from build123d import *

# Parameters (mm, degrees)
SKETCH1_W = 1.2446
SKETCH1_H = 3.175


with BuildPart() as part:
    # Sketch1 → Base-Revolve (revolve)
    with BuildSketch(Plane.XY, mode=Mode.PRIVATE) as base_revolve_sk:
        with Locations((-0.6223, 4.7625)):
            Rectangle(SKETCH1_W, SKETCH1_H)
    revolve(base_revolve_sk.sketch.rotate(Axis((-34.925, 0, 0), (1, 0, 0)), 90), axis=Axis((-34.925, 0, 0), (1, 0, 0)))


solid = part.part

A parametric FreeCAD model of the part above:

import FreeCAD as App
import Part
import Sketcher
Q = App.Units.Quantity

doc = App.newDocument("Part")
params = doc.addObject("Spreadsheet::Sheet", "Params")
for row, (alias, value) in enumerate([
    ("sketch1_width", "0.049 in"),
    ("sketch1_height", "0.125 in"),
    ("revolution_angle", "360 deg"),
], start=1):
    params.set(f"A{row}", alias)
    params.set(f"B{row}", "=" + value)
    params.setAlias(f"B{row}", alias)

body = doc.addObject("PartDesign::Body", "Body")

# Sketch on XY plane
sketch1 = body.newObject("Sketcher::SketchObject", "Sketch")
sketch1.AttachmentSupport = (doc.getObject("XY_Plane"), [""])
sketch1.MapMode = "FlatFace"
sketch1.addGeometry([
    Part.LineSegment(App.Vector(-1.2446, 6.35, 0), App.Vector(-1.2446, 3.175, 0)),
    Part.LineSegment(App.Vector(-1.2446, 3.175, 0), App.Vector(0, 3.175, 0)),
    Part.LineSegment(App.Vector(0, 3.175, 0), App.Vector(0, 6.35, 0)),
    Part.LineSegment(App.Vector(0, 6.35, 0), App.Vector(-1.2446, 6.35, 0)),
], False)
sketch1.addConstraint([
    Sketcher.Constraint("Coincident", 0, 2, 1, 1),
    Sketcher.Constraint("Coincident", 1, 2, 2, 1),
    Sketcher.Constraint("Coincident", 2, 2, 3, 1),
    Sketcher.Constraint("Coincident", 3, 2, 0, 1),
    Sketcher.Constraint("Vertical", 0),
    Sketcher.Constraint("Horizontal", 1),
    Sketcher.Constraint("Vertical", 2),
    Sketcher.Constraint("Horizontal", 3),
    Sketcher.Constraint("PointOnObject", 1, 2, -2),
    Sketcher.Constraint("DistanceX", 1, 1, 1, 2, Q("0.049 in")),
    Sketcher.Constraint("DistanceY", 0, 2, 0, 1, Q("0.125 in")),
    Sketcher.Constraint("DistanceY", -1, 1, 2, 2, Q("0.25 in")),
])
sketch1.setExpression("Constraints[9]", "Params.sketch1_width")
sketch1.setExpression("Constraints[10]", "Params.sketch1_height")
revolution = body.newObject("PartDesign::Revolution", "Revolution")
revolution.Profile = sketch1
revolution.ReferenceAxis = (sketch1, ["H_Axis"])
revolution.setExpression("Angle", "Params.revolution_angle")

doc.recompute()
